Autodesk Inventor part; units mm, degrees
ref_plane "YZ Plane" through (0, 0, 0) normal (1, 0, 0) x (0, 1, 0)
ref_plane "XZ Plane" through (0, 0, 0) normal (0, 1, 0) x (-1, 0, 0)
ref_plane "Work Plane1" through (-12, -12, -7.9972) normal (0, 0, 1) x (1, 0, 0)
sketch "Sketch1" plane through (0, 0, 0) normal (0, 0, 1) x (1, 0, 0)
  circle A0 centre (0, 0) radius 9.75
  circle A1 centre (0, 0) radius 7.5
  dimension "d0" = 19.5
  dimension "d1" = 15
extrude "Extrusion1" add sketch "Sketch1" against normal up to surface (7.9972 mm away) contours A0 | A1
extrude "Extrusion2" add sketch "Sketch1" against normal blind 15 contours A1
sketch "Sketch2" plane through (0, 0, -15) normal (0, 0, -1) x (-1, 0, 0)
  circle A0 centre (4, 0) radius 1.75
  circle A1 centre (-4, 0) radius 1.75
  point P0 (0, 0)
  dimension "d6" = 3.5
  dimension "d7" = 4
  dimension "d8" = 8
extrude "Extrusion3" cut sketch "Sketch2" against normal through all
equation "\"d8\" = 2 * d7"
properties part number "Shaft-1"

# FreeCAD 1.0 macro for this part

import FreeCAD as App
import Part
import Sketcher

V = App.Vector

doc = App.newDocument("Part")
body = doc.addObject("PartDesign::Body", "Body")

sketch1 = doc.addObject("Sketcher::SketchObject", "Sketch")
body.addObject(sketch1)
sketch1.AttachmentSupport = (doc.XY_Plane, [""])
sketch1.MapMode = "FlatFace"
sketch1.addGeometry(Part.Circle(V(0, 0, 0), V(0, 0, 1), 10), False)
sketch1.addConstraint(Sketcher.Constraint("Coincident", 0, 3, -1, 1))
sketch1.addConstraint(Sketcher.Constraint("Diameter", 0, 19.5))
pad1 = doc.addObject("PartDesign::Pad", "Pad")
body.addObject(pad1)
pad1.Profile = sketch1
pad1.Length = 7.9972
pad1.Reversed = True

sketch2 = doc.addObject("Sketcher::SketchObject", "Sketch001")
body.addObject(sketch2)
sketch2.AttachmentSupport = (doc.XY_Plane, [""])
sketch2.MapMode = "FlatFace"
sketch2.addGeometry(Part.Circle(V(0, 0, 0), V(0, 0, 1), 8), False)
sketch2.addConstraint(Sketcher.Constraint("Coincident", 0, 3, -1, 1))
sketch2.addConstraint(Sketcher.Constraint("Diameter", 0, 15.0))
pad2 = doc.addObject("PartDesign::Pad", "Pad001")
body.addObject(pad2)
pad2.Profile = sketch2
pad2.Length = 15
pad2.Reversed = True

sketch3 = doc.addObject("Sketcher::SketchObject", "Sketch002")
body.addObject(sketch3)
sketch3.AttachmentSupport = (doc.XY_Plane, [""])
sketch3.MapMode = "FlatFace"
sketch3.AttachmentOffset = App.Placement(V(0, 0, -15), App.Rotation())
sketch3.addGeometry(Part.Circle(V(-4, 0, 0), V(0, 0, 1), 1.8), False)
sketch3.addGeometry(Part.Circle(V(4, 0, 0), V(0, 0, 1), 1.8), False)
sketch3.addConstraint(Sketcher.Constraint("Equal", 0, 1))
sketch3.addConstraint(Sketcher.Constraint("Symmetric", 0, 3, 1, 3, -1, 1))
sketch3.addConstraint(Sketcher.Constraint("PointOnObject", 0, 3, -1))
sketch3.addConstraint(Sketcher.Constraint("Diameter", 0, 3.5))
sketch3.addConstraint(Sketcher.Constraint("DistanceX", 0, 3, -1, 1, 4.0))
pocket1 = doc.addObject("PartDesign::Pocket", "Pocket")
body.addObject(pocket1)
pocket1.Profile = sketch3
pocket1.Type = "ThroughAll"
pocket1.Reversed = True

doc.recompute()
